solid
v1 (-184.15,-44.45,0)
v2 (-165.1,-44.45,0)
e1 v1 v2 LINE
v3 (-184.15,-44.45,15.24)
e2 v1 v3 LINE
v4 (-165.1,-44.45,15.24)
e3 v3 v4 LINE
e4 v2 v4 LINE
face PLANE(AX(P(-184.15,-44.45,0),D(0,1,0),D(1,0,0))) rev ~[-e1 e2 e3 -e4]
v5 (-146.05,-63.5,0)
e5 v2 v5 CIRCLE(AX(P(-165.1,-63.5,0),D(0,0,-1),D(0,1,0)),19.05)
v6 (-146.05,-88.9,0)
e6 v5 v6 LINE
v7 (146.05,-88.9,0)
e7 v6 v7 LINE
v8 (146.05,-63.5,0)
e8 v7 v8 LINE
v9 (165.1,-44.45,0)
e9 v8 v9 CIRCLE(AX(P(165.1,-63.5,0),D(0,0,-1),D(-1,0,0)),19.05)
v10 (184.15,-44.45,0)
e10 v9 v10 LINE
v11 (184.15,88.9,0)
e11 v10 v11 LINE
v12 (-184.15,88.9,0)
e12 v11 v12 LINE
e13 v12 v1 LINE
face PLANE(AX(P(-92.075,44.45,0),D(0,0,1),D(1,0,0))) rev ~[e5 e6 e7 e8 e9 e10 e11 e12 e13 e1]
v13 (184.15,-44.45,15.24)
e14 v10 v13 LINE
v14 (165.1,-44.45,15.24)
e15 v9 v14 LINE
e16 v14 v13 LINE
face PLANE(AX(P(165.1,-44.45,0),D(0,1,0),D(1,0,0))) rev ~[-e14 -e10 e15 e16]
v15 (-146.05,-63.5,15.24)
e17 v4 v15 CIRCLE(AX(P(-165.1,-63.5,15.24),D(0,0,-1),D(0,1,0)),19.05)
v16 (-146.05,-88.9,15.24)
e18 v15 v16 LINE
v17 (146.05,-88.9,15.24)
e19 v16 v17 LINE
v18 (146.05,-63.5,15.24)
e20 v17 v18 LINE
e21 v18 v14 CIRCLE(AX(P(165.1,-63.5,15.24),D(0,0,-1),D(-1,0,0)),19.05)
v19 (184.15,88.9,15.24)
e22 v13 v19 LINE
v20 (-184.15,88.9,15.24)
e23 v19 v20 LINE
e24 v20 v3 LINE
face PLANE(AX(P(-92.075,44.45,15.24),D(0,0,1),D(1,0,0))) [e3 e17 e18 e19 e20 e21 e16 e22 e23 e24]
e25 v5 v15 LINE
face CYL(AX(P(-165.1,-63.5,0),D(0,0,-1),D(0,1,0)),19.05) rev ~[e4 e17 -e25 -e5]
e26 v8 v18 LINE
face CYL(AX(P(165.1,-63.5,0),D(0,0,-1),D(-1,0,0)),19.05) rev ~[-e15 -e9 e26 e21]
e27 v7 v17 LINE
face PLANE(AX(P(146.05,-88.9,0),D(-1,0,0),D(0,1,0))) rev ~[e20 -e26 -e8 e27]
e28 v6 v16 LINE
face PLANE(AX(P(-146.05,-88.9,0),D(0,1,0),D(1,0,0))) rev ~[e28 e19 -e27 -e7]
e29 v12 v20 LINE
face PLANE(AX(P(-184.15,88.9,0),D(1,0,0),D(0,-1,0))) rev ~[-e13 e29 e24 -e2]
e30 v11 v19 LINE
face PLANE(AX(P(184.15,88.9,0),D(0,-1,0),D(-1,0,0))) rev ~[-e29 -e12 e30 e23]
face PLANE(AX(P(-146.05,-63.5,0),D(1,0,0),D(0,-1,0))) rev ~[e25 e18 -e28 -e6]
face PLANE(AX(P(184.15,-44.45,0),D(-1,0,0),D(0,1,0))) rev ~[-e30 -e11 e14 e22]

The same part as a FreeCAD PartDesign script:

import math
import FreeCAD as App
import Part
import Sketcher

V = App.Vector
Q = App.Units.Quantity

doc = App.newDocument("Part")
body = doc.addObject("PartDesign::Body", "Body")

sketch1 = body.newObject("Sketcher::SketchObject", "Sketch")
sketch1.AttachmentSupport = (doc.getObject("XY_Plane"), [""])
sketch1.MapMode = "FlatFace"
sketch1.addGeometry(Part.LineSegment(V(-184, 89, 0), V(-184, -44, 0)), False)
sketch1.addGeometry(Part.LineSegment(V(-184, -44, 0), V(-165, -44, 0)), False)
sketch1.addGeometry(Part.ArcOfCircle(Part.Circle(V(-165, -64, 0), V(0, 0, 1), 19), math.radians(0), math.radians(90)), False)
sketch1.addGeometry(Part.LineSegment(V(-146, -64, 0), V(-146, -89, 0)), False)
sketch1.addGeometry(Part.LineSegment(V(-146, -89, 0), V(146, -89, 0)), False)
sketch1.addGeometry(Part.LineSegment(V(146, -89, 0), V(146, -64, 0)), False)
sketch1.addGeometry(Part.ArcOfCircle(Part.Circle(V(165, -64, 0), V(0, 0, 1), 19), math.radians(90), math.radians(180)), False)
sketch1.addGeometry(Part.LineSegment(V(165, -44, 0), V(184, -44, 0)), False)
sketch1.addGeometry(Part.LineSegment(V(184, -44, 0), V(184, 89, 0)), False)
sketch1.addGeometry(Part.LineSegment(V(184, 89, 0), V(-184, 89, 0)), False)
sketch1.addConstraint(Sketcher.Constraint("Coincident", 0, 2, 1, 1))
sketch1.addConstraint(Sketcher.Constraint("Tangent", 1, 2, 2, 2))
sketch1.addConstraint(Sketcher.Constraint("Tangent", 2, 1, 3, 1))
sketch1.addConstraint(Sketcher.Constraint("Coincident", 3, 2, 4, 1))
sketch1.addConstraint(Sketcher.Constraint("Coincident", 4, 2, 5, 1))
sketch1.addConstraint(Sketcher.Constraint("Tangent", 5, 2, 6, 2))
sketch1.addConstraint(Sketcher.Constraint("Tangent", 6, 1, 7, 1))
sketch1.addConstraint(Sketcher.Constraint("Coincident", 7, 2, 8, 1))
sketch1.addConstraint(Sketcher.Constraint("Coincident", 8, 2, 9, 1))
sketch1.addConstraint(Sketcher.Constraint("Coincident", 9, 2, 0, 1))
sketch1.addConstraint(Sketcher.Constraint("Vertical", 0))
sketch1.addConstraint(Sketcher.Constraint("Horizontal", 1))
sketch1.addConstraint(Sketcher.Constraint("Vertical", 3))
sketch1.addConstraint(Sketcher.Constraint("Horizontal", 4))
sketch1.addConstraint(Sketcher.Constraint("Vertical", 5))
sketch1.addConstraint(Sketcher.Constraint("Horizontal", 7))
sketch1.addConstraint(Sketcher.Constraint("Vertical", 8))
sketch1.addConstraint(Sketcher.Constraint("Horizontal", 9))
sketch1.addConstraint(Sketcher.Constraint("Equal", 2, 6))
sketch1.addConstraint(Sketcher.Constraint("Symmetric", 2, 3, 6, 3, -2))
sketch1.addConstraint(Sketcher.Constraint("Equal", 1, 7))
sketch1.addConstraint(Sketcher.Constraint("DistanceY", 3, 2, 3, 1, Q("1 in")))
sketch1.addConstraint(Sketcher.Constraint("Radius", 2, Q("0.75 in")))
sketch1.addConstraint(Sketcher.Constraint("DistanceX", 4, 1, 4, 2, Q("11.5 in")))
sketch1.addConstraint(Sketcher.Constraint("DistanceX", 9, 2, 9, 1, Q("14.5 in")))
sketch1.addConstraint(Sketcher.Constraint("DistanceY", 6, 3, 8, 2, Q("6 in")))
sketch1.addConstraint(Sketcher.Constraint("DistanceY", 2, 3, -1, 1, Q("2.5 in")))
pad1 = body.newObject("PartDesign::Pad", "Pad")
pad1.Profile = sketch1
pad1.Length = Q("0.6 in")

doc.recompute()
